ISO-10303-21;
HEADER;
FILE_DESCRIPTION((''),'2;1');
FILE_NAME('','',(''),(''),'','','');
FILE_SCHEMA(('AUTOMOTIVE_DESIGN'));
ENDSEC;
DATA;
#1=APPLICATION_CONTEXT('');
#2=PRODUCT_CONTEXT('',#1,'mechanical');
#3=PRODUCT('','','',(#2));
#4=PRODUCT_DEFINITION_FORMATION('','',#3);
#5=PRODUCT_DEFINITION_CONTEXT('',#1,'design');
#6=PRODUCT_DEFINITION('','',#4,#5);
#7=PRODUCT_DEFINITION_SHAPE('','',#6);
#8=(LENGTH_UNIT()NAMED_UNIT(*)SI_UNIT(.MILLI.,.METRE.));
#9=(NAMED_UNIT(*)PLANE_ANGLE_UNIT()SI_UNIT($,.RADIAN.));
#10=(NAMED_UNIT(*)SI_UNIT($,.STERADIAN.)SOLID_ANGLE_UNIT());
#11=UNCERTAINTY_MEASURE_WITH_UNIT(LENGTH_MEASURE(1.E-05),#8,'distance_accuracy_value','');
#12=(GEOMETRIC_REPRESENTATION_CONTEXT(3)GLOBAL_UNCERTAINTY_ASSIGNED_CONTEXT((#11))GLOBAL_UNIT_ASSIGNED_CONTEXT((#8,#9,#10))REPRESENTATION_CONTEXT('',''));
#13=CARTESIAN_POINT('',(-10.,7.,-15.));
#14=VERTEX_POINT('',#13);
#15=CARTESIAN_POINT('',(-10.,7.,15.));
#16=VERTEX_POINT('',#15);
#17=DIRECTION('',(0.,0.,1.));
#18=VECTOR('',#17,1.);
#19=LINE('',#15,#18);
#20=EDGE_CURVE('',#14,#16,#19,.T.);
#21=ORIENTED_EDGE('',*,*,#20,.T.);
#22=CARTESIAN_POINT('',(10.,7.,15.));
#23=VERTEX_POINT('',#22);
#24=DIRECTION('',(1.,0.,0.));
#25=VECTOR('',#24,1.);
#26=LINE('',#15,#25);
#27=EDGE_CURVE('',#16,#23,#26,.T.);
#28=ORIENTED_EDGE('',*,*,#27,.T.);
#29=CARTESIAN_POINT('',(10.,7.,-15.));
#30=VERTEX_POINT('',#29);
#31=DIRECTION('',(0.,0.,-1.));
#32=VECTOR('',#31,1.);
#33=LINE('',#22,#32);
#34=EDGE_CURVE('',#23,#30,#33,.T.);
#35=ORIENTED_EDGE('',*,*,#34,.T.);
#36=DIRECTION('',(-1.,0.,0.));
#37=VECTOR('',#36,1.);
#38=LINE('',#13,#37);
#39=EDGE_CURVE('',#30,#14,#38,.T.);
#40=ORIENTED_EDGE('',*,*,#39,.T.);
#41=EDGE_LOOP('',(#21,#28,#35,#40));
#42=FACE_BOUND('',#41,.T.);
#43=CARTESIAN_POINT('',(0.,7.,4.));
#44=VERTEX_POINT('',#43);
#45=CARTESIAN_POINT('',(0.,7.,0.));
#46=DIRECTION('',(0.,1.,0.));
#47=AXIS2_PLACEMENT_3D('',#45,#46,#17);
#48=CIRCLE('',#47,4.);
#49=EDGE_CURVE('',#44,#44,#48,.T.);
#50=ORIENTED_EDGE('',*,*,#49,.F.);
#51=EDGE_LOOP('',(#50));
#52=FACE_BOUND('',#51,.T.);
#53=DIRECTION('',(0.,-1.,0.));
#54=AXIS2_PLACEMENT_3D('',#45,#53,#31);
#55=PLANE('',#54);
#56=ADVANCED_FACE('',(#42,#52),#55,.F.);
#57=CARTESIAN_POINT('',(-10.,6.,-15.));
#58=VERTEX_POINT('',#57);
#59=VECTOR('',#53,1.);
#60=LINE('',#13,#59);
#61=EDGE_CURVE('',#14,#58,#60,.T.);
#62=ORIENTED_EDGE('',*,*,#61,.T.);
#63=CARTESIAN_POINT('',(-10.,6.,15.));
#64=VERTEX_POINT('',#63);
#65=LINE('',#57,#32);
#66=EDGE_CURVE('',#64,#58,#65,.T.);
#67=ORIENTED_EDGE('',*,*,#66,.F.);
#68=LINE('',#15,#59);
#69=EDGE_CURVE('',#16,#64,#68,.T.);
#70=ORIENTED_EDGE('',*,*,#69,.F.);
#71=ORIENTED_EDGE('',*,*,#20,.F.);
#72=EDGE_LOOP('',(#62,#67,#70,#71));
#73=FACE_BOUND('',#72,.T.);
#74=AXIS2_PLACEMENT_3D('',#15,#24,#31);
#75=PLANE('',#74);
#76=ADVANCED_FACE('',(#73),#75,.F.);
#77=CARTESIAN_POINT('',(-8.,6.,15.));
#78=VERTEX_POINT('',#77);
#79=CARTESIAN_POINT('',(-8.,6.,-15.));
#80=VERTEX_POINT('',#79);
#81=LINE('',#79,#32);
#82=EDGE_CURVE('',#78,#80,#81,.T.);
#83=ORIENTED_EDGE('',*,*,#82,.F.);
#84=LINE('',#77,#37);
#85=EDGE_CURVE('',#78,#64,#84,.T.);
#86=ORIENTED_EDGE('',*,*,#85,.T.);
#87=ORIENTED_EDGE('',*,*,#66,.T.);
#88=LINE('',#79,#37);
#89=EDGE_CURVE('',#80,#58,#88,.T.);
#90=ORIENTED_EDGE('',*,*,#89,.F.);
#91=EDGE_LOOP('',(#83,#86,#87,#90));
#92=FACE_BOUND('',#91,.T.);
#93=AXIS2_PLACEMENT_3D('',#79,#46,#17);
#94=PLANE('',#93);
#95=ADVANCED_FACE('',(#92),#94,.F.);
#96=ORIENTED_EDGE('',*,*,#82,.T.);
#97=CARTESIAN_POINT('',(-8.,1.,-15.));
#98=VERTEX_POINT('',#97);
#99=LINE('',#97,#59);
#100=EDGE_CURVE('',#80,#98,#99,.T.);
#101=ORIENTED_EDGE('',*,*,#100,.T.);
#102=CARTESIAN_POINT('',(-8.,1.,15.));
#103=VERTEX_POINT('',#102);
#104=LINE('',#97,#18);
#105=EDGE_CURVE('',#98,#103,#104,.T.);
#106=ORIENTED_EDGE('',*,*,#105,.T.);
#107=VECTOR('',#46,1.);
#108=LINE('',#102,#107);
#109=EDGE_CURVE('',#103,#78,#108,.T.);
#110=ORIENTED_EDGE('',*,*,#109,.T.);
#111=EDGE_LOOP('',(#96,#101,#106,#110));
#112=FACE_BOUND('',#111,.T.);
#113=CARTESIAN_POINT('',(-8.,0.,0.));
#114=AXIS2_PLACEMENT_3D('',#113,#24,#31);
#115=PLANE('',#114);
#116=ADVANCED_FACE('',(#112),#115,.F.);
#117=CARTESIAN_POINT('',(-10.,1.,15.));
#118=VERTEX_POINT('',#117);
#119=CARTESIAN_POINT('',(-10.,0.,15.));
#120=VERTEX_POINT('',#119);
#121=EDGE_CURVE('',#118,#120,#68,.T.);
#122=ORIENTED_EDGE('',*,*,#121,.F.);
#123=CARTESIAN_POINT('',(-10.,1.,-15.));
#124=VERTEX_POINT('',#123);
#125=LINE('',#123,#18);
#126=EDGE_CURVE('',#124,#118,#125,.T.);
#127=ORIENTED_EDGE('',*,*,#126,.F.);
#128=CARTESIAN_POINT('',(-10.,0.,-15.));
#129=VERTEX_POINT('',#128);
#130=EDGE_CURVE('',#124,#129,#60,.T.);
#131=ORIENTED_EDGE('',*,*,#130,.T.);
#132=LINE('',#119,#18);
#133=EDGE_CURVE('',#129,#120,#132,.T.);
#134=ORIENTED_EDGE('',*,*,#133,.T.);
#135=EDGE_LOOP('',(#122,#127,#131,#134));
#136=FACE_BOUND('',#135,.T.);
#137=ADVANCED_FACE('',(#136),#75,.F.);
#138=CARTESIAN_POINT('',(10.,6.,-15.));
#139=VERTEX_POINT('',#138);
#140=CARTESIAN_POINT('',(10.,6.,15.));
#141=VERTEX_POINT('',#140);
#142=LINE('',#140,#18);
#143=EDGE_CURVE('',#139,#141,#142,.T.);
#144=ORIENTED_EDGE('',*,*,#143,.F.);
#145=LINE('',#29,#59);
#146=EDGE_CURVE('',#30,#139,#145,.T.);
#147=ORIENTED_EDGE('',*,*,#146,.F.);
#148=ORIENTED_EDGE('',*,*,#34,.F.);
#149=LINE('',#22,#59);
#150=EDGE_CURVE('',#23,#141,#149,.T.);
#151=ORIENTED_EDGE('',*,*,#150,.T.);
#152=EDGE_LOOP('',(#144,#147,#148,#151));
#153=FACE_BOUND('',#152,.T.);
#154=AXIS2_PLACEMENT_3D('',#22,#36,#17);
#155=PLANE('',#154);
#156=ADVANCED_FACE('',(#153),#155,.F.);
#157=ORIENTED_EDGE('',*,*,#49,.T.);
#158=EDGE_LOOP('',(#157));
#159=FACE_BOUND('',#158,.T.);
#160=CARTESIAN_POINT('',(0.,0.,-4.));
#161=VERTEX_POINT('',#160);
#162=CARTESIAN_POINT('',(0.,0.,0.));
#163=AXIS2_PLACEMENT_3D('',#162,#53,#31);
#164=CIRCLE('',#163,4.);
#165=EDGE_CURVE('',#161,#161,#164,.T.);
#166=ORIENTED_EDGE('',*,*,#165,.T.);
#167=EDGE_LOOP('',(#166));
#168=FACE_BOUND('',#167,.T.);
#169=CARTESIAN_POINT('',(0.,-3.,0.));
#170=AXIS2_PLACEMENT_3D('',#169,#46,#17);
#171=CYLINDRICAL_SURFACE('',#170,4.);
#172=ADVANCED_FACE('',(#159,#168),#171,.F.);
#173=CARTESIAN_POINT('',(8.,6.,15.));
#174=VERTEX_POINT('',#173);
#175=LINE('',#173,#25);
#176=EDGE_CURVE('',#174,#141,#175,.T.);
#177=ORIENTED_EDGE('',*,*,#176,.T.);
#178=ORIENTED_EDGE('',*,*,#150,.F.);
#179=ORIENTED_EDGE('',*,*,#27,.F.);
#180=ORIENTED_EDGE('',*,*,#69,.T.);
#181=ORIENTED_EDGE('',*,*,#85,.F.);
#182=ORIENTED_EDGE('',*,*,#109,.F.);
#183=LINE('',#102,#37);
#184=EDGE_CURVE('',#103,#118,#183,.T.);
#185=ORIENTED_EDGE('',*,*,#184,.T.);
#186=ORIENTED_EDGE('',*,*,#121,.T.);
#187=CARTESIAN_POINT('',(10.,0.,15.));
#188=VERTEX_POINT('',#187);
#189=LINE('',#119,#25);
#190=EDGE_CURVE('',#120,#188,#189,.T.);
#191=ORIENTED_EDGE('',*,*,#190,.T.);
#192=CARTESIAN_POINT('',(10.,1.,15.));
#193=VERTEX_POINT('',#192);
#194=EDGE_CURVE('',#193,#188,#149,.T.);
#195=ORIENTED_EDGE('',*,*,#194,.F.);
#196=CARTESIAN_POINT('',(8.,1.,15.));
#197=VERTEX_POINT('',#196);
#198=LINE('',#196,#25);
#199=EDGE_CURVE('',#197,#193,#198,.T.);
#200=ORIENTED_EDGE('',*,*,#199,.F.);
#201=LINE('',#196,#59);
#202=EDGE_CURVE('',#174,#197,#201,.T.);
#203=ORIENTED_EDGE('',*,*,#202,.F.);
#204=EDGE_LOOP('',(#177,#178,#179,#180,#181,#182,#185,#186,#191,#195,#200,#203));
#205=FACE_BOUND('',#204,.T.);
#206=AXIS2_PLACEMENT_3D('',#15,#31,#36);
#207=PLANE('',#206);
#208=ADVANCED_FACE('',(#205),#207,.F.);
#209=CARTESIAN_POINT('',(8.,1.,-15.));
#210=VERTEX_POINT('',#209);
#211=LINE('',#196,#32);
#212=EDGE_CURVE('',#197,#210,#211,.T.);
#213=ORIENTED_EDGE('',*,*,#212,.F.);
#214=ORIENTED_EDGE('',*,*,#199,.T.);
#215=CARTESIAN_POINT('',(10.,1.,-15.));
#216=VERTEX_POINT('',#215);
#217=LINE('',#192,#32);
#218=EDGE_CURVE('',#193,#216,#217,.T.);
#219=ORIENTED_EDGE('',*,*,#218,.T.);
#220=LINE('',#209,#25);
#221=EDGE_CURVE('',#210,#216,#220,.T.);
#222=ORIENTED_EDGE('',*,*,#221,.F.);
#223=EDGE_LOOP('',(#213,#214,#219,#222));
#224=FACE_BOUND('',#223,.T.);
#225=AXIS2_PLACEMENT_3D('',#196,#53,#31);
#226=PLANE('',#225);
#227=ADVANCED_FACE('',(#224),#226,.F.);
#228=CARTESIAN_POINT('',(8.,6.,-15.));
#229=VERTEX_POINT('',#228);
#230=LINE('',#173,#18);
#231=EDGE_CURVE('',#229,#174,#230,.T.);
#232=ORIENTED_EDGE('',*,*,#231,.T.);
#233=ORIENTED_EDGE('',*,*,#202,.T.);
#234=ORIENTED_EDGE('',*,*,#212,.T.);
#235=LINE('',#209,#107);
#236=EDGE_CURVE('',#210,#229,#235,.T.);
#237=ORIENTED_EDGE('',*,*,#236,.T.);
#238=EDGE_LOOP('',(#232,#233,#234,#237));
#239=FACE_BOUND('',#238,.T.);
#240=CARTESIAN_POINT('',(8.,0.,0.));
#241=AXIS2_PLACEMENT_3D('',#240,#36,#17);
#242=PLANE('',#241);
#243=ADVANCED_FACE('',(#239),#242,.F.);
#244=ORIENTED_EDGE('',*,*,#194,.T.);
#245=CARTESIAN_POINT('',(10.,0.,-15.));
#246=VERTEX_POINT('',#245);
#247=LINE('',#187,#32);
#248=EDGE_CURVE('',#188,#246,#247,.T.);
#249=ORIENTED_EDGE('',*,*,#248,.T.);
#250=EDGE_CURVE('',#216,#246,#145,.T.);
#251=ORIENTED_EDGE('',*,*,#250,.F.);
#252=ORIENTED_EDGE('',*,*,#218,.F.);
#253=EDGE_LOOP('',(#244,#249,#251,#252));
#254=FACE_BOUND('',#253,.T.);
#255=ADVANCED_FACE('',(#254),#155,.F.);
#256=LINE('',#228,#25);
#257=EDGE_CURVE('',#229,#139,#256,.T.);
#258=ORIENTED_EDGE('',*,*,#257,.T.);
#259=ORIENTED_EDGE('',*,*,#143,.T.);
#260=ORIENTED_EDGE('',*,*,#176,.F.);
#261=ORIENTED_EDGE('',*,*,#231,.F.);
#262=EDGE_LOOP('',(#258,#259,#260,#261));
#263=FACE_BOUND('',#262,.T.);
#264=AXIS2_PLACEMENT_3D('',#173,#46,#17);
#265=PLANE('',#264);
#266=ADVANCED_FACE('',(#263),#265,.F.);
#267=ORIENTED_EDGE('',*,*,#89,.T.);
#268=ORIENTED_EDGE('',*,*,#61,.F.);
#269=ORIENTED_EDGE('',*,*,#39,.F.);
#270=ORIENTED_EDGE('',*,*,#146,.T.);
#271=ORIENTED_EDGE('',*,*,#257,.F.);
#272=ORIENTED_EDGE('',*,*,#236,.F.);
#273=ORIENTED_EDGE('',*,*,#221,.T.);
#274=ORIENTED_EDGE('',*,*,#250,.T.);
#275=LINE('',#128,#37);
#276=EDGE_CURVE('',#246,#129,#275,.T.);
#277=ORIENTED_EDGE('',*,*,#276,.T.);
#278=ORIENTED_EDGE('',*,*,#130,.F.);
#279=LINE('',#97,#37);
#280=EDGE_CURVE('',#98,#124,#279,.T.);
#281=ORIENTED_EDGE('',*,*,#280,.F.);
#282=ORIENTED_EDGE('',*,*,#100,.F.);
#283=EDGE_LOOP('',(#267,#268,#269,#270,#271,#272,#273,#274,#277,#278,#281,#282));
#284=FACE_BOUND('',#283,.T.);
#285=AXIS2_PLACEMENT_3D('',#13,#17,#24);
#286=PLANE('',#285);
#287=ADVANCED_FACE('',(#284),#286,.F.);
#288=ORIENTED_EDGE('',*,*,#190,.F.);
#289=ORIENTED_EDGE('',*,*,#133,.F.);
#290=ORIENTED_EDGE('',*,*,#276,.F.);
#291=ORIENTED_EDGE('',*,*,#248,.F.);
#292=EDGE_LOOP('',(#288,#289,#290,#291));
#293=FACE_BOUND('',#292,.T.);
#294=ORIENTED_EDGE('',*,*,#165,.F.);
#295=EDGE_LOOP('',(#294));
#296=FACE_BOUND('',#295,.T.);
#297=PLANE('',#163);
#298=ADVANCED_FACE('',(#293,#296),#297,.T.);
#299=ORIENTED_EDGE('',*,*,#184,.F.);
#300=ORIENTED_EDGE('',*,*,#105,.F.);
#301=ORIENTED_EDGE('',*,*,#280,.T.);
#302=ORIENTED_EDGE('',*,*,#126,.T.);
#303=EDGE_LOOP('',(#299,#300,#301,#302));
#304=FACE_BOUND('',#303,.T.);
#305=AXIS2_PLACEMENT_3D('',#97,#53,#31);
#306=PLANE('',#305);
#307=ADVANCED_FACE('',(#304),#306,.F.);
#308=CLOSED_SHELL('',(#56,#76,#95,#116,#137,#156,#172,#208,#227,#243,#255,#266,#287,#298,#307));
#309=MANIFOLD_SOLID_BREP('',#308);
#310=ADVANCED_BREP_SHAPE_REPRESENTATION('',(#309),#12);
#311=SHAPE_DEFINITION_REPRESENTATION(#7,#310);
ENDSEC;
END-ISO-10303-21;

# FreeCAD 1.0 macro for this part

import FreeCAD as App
import Part
import Sketcher
Q = App.Units.Quantity

doc = App.newDocument("Part")
body = doc.addObject("PartDesign::Body", "Body")

# Sketch on XZ plane
sketch1 = body.newObject("Sketcher::SketchObject", "Sketch")
sketch1.AttachmentSupport = (doc.getObject("XZ_Plane"), [""])
sketch1.MapMode = "FlatFace"
sketch1.addGeometry([
    Part.LineSegment(App.Vector(-10, -15, 0), App.Vector(-10, 15, 0)),
    Part.LineSegment(App.Vector(-10, 15, 0), App.Vector(10, 15, 0)),
    Part.LineSegment(App.Vector(10, 15, 0), App.Vector(10, -15, 0)),
    Part.LineSegment(App.Vector(10, -15, 0), App.Vector(-10, -15, 0)),
], False)
sketch1.addConstraint([
    Sketcher.Constraint("Coincident", 0, 2, 1, 1),
    Sketcher.Constraint("Coincident", 1, 2, 2, 1),
    Sketcher.Constraint("Coincident", 2, 2, 3, 1),
    Sketcher.Constraint("Coincident", 3, 2, 0, 1),
    Sketcher.Constraint("Vertical", 0),
    Sketcher.Constraint("Horizontal", 1),
    Sketcher.Constraint("Vertical", 2),
    Sketcher.Constraint("Horizontal", 3),
    Sketcher.Constraint("Symmetric", 0, 2, 2, 2, -1, 1),
    Sketcher.Constraint("DistanceX", 1, 1, 1, 2, Q("20 mm")),
    Sketcher.Constraint("DistanceY", 0, 1, 0, 2, Q("30 mm")),
])
pad1 = body.newObject("PartDesign::Pad", "Pad")
pad1.Profile = sketch1
pad1.Length = 7
pad1.Reversed = True

# Sketch on YZ plane
sketch2 = body.newObject("Sketcher::SketchObject", "Sketch001")
sketch2.AttachmentSupport = (doc.getObject("YZ_Plane"), [""])
sketch2.MapMode = "FlatFace"
sketch2.AttachmentOffset = App.Placement(App.Vector(0, 0, 10), App.Rotation())
sketch2.addGeometry([
    Part.LineSegment(App.Vector(6, 15, 0), App.Vector(1, 15, 0)),
    Part.LineSegment(App.Vector(1, 15, 0), App.Vector(1, -15, 0)),
    Part.LineSegment(App.Vector(1, -15, 0), App.Vector(6, -15, 0)),
    Part.LineSegment(App.Vector(6, -15, 0), App.Vector(6, 15, 0)),
], False)
sketch2.addConstraint([
    Sketcher.Constraint("Coincident", 0, 2, 1, 1),
    Sketcher.Constraint("Coincident", 1, 2, 2, 1),
    Sketcher.Constraint("Coincident", 2, 2, 3, 1),
    Sketcher.Constraint("Coincident", 3, 2, 0, 1),
    Sketcher.Constraint("Horizontal", 0),
    Sketcher.Constraint("Vertical", 1),
    Sketcher.Constraint("Horizontal", 2),
    Sketcher.Constraint("Vertical", 3),
    Sketcher.Constraint("DistanceX", 0, 2, 0, 1, Q("5 mm")),
    Sketcher.Constraint("DistanceY", 1, 2, 1, 1, Q("30 mm")),
    Sketcher.Constraint("DistanceX", -1, 1, 0, 2, Q("1 mm")),
    Sketcher.Constraint("DistanceY", -1, 1, 0, 2, Q("15 mm")),
])
pocket1 = body.newObject("PartDesign::Pocket", "Pocket")
pocket1.Profile = sketch2
pocket1.Length = 2

# Sketch on YZ plane
sketch3 = body.newObject("Sketcher::SketchObject", "Sketch002")
sketch3.AttachmentSupport = (doc.getObject("YZ_Plane"), [""])
sketch3.MapMode = "FlatFace"
sketch3.AttachmentOffset = App.Placement(App.Vector(0, 0, -10), App.Rotation())
sketch3.addGeometry([
    Part.LineSegment(App.Vector(6, -15, 0), App.Vector(1, -15, 0)),
    Part.LineSegment(App.Vector(1, -15, 0), App.Vector(1, 15, 0)),
    Part.LineSegment(App.Vector(1, 15, 0), App.Vector(6, 15, 0)),
    Part.LineSegment(App.Vector(6, 15, 0), App.Vector(6, -15, 0)),
], False)
sketch3.addConstraint([
    Sketcher.Constraint("Coincident", 0, 2, 1, 1),
    Sketcher.Constraint("Coincident", 1, 2, 2, 1),
    Sketcher.Constraint("Coincident", 2, 2, 3, 1),
    Sketcher.Constraint("Coincident", 3, 2, 0, 1),
    Sketcher.Constraint("Horizontal", 0),
    Sketcher.Constraint("Vertical", 1),
    Sketcher.Constraint("Horizontal", 2),
    Sketcher.Constraint("Vertical", 3),
    Sketcher.Constraint("DistanceX", 0, 2, 0, 1, Q("5 mm")),
    Sketcher.Constraint("DistanceY", 1, 1, 1, 2, Q("30 mm")),
    Sketcher.Constraint("DistanceX", -1, 1, 0, 2, Q("1 mm")),
    Sketcher.Constraint("DistanceY", 0, 2, -1, 1, Q("15 mm")),
])
pocket2 = body.newObject("PartDesign::Pocket", "Pocket001")
pocket2.Profile = sketch3
pocket2.Length = 2
pocket2.Reversed = True

# Sketch on XZ plane
sketch4 = body.newObject("Sketcher::SketchObject", "Sketch003")
sketch4.AttachmentSupport = (doc.getObject("XZ_Plane"), [""])
sketch4.MapMode = "FlatFace"
sketch4.AttachmentOffset = App.Placement(App.Vector(0, 0, -7), App.Rotation())
sketch4.addGeometry(Part.Circle(App.Vector(0, 0, 0), App.Vector(0, 0, 1), 4), False)
sketch4.addConstraint([
    Sketcher.Constraint("Coincident", 0, 3, -1, 1),
    Sketcher.Constraint("Diameter", 0, Q("8 mm")),
])
pocket3 = body.newObject("PartDesign::Pocket", "Pocket002")
pocket3.Profile = sketch4
pocket3.Length = 10
pocket3.Reversed = True

doc.recompute()
